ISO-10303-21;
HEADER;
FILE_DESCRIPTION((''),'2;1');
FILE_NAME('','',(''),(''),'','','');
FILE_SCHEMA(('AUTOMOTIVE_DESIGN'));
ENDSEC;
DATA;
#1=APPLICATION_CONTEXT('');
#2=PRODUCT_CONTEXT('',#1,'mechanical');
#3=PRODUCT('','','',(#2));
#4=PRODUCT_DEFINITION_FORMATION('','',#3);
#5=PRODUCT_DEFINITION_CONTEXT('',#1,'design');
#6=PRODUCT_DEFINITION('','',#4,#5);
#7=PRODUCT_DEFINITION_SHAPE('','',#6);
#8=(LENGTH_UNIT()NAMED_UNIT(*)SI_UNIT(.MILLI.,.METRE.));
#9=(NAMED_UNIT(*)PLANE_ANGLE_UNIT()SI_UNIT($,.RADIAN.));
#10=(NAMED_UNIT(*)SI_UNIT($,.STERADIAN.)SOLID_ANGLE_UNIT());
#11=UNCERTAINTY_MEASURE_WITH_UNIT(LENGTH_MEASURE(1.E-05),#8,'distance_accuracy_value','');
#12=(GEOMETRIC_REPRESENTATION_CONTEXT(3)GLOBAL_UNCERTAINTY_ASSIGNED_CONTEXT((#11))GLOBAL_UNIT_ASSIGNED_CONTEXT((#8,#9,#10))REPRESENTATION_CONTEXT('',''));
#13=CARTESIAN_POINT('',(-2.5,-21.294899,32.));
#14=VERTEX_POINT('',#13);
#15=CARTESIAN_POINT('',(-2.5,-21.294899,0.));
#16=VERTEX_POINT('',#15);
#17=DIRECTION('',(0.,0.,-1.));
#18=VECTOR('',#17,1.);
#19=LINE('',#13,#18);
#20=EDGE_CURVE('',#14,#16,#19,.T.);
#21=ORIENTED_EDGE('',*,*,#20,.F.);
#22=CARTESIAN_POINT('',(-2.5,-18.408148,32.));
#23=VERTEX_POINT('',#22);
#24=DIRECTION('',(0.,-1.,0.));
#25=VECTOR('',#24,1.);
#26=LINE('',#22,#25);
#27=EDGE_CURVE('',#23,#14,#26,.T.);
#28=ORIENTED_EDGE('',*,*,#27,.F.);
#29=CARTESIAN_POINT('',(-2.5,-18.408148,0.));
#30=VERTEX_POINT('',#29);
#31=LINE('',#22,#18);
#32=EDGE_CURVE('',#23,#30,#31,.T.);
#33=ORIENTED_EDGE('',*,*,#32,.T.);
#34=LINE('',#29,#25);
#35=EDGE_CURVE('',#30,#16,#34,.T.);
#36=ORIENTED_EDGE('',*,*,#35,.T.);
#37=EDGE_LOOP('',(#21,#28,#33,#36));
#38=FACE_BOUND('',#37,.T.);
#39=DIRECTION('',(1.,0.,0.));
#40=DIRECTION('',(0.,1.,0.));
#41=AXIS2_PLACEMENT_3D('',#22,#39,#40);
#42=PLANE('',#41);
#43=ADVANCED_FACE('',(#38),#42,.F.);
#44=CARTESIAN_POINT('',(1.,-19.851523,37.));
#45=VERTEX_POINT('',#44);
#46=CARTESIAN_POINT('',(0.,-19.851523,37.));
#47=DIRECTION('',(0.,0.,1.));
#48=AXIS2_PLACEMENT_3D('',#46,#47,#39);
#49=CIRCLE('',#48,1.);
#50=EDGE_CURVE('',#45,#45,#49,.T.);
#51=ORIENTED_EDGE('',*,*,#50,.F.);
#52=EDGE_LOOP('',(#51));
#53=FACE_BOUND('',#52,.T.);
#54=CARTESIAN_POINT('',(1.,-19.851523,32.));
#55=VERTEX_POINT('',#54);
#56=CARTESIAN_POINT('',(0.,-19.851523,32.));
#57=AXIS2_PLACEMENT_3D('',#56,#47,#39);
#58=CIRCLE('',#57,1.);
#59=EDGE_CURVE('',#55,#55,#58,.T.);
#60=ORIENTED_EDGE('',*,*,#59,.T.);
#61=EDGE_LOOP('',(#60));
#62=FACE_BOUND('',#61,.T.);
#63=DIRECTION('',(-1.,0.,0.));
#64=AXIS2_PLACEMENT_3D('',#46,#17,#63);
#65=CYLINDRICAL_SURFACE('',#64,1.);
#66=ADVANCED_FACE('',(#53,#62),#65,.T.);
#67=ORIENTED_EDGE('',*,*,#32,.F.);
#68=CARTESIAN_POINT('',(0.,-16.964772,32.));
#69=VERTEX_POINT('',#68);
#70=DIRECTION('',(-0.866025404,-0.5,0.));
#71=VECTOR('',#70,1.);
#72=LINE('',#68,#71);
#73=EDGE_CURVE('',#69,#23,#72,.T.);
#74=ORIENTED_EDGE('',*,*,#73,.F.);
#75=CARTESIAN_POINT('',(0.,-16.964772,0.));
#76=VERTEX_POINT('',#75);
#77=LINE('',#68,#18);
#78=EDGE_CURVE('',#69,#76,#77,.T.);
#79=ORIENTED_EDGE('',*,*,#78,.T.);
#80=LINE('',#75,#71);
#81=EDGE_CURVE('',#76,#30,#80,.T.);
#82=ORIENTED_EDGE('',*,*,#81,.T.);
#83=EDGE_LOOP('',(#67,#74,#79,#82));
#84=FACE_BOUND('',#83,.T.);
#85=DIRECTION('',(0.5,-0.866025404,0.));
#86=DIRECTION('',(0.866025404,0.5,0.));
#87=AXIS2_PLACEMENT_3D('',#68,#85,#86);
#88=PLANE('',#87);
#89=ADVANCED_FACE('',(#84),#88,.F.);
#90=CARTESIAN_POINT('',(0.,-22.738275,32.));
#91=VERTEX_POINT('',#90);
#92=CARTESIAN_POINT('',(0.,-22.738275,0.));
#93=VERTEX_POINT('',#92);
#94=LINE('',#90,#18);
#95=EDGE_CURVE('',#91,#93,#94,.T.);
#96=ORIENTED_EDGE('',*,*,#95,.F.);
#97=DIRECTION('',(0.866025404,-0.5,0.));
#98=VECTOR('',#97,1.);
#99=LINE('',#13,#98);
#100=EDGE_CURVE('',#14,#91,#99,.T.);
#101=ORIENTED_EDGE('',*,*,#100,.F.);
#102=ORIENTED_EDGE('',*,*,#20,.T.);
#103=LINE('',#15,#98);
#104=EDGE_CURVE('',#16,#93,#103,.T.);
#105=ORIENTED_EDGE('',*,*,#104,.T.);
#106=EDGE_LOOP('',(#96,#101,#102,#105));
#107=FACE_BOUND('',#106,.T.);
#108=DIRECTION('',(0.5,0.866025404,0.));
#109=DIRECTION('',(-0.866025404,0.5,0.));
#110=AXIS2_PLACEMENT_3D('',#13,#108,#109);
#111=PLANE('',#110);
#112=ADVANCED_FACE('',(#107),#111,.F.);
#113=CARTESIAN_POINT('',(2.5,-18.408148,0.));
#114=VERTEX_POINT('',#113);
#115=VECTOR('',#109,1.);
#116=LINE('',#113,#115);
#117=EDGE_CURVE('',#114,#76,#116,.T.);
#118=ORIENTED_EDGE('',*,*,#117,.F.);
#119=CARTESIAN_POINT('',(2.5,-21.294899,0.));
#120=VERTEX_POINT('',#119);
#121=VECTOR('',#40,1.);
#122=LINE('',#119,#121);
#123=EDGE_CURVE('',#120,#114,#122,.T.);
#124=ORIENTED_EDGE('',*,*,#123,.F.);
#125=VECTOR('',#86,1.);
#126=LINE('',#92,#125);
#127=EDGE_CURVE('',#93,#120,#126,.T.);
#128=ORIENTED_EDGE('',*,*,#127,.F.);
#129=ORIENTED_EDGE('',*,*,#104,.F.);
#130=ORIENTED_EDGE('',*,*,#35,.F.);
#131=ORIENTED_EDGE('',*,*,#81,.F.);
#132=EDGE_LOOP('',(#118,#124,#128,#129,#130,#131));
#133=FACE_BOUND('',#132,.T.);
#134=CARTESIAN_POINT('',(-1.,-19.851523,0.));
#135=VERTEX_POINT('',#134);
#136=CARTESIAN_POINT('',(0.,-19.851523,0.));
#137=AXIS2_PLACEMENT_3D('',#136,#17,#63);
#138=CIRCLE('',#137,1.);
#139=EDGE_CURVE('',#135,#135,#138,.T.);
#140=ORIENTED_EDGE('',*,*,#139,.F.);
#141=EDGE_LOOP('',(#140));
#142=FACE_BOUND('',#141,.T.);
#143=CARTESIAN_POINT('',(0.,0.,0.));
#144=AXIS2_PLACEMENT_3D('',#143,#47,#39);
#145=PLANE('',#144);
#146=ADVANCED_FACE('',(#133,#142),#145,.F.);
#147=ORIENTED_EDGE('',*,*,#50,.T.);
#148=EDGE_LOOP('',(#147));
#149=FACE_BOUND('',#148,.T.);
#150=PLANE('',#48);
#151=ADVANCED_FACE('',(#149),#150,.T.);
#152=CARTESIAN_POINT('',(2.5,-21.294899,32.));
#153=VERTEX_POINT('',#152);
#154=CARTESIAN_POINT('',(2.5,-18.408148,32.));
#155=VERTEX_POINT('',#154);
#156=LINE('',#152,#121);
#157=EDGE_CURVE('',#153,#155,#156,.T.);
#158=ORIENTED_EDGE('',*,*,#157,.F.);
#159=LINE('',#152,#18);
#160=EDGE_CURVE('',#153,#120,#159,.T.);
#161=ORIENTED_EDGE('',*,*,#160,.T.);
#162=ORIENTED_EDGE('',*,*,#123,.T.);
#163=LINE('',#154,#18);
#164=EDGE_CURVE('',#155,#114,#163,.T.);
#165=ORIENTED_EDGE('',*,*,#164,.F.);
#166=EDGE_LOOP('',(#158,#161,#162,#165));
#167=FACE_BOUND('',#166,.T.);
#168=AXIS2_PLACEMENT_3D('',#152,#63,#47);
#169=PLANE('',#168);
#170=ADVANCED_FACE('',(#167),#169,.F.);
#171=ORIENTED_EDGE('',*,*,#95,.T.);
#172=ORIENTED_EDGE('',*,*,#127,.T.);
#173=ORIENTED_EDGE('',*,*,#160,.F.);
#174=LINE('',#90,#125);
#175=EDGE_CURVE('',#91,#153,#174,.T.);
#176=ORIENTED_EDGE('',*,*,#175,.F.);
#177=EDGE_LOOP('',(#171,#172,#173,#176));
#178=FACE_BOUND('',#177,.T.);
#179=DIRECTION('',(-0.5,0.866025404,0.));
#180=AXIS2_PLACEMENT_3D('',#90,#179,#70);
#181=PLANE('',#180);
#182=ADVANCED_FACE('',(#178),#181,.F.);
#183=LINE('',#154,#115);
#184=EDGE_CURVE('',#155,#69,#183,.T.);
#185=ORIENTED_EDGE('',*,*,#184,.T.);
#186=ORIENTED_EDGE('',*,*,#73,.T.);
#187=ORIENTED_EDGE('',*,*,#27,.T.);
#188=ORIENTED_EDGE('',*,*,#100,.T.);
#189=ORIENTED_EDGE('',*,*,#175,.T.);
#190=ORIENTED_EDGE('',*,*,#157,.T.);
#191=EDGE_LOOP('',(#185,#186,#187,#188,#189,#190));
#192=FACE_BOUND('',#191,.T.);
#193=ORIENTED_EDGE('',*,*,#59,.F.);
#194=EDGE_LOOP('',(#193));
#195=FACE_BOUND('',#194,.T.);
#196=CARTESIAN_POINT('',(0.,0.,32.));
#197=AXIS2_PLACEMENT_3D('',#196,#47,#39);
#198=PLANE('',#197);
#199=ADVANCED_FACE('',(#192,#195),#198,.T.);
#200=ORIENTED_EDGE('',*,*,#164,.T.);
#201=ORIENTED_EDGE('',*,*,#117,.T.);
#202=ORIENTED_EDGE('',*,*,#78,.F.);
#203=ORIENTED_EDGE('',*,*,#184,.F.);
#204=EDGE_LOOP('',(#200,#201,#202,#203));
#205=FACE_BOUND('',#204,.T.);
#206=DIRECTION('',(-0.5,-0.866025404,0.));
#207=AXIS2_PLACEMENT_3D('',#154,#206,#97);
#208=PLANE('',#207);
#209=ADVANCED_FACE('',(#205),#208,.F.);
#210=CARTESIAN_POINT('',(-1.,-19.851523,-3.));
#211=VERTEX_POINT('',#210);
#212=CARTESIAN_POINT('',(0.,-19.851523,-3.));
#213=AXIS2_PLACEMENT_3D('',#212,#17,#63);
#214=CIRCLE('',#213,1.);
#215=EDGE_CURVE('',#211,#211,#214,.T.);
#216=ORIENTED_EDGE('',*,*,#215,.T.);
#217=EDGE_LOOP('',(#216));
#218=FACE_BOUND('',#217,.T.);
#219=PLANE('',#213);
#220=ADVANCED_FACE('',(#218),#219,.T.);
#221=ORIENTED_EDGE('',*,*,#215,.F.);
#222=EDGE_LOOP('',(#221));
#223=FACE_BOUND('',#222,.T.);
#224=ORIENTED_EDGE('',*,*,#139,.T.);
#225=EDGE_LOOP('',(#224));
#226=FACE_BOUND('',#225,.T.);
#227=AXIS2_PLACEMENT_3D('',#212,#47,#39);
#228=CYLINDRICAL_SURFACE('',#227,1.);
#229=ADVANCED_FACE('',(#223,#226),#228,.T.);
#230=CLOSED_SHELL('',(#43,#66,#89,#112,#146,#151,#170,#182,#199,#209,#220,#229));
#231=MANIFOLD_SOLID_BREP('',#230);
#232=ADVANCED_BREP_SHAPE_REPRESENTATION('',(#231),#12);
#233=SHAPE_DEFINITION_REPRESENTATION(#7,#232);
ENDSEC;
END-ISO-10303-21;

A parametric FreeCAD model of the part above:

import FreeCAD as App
import Part
import Sketcher
from FreeCAD import Vector
Q = App.Units.Quantity

doc = App.newDocument("Part")
body = doc.addObject("PartDesign::Body", "Body")

sketch1 = doc.addObject("Sketcher::SketchObject", "Sketch")
body.addObject(sketch1)
sketch1.AttachmentSupport = (doc.XY_Plane, [""])
sketch1.MapMode = "FlatFace"
sketch1.addGeometry(Part.LineSegment(Vector(0, -17, 0), Vector(-2.5, -18.4, 0)), False)
sketch1.addGeometry(Part.LineSegment(Vector(-2.5, -18.4, 0), Vector(-2.5, -21.3, 0)), False)
sketch1.addGeometry(Part.LineSegment(Vector(-2.5, -21.3, 0), Vector(0, -22.7, 0)), False)
sketch1.addGeometry(Part.LineSegment(Vector(0, -22.7, 0), Vector(2.5, -21.3, 0)), False)
sketch1.addGeometry(Part.LineSegment(Vector(2.5, -21.3, 0), Vector(2.5, -18.4, 0)), False)
sketch1.addGeometry(Part.LineSegment(Vector(2.5, -18.4, 0), Vector(0, -17, 0)), False)
sketch1.addConstraint(Sketcher.Constraint("Coincident", 0, 2, 1, 1))
sketch1.addConstraint(Sketcher.Constraint("Coincident", 1, 2, 2, 1))
sketch1.addConstraint(Sketcher.Constraint("Coincident", 2, 2, 3, 1))
sketch1.addConstraint(Sketcher.Constraint("Coincident", 3, 2, 4, 1))
sketch1.addConstraint(Sketcher.Constraint("Coincident", 4, 2, 5, 1))
sketch1.addConstraint(Sketcher.Constraint("Coincident", 5, 2, 0, 1))
sketch1.addConstraint(Sketcher.Constraint("Vertical", 1))
sketch1.addConstraint(Sketcher.Constraint("Vertical", 4))
sketch1.addConstraint(Sketcher.Constraint("Symmetric", 1, 2, 3, 2, -2))
sketch1.addConstraint(Sketcher.Constraint("PointOnObject", 2, 2, -2))
sketch1.addConstraint(Sketcher.Constraint("PointOnObject", 5, 2, -2))
sketch1.addConstraint(Sketcher.Constraint("Parallel", 0, 3))
sketch1.addConstraint(Sketcher.Constraint("Parallel", 2, 5))
sketch1.addConstraint(Sketcher.Constraint("Angle", 0, Q("-150 deg")))
sketch1.addConstraint(Sketcher.Constraint("DistanceX", 1, 2, 3, 2, Q("5 mm")))
sketch1.addConstraint(Sketcher.Constraint("DistanceY", 1, 2, 1, 1, Q("2.886751 mm")))
sketch1.addConstraint(Sketcher.Constraint("DistanceY", 1, 2, -1, 1, Q("21.294899 mm")))
pad1 = doc.addObject("PartDesign::Pad", "Pad")
body.addObject(pad1)
pad1.Profile = sketch1
pad1.Length = 32

sketch2 = doc.addObject("Sketcher::SketchObject", "Sketch001")
body.addObject(sketch2)
sketch2.AttachmentSupport = (doc.XY_Plane, [""])
sketch2.MapMode = "FlatFace"
sketch2.AttachmentOffset = App.Placement(Vector(0, 0, 32), App.Rotation())
sketch2.addGeometry(Part.Circle(Vector(0, -19.9, 0), Vector(0, 0, 1), 1), False)
sketch2.addConstraint(Sketcher.Constraint("PointOnObject", 0, 3, -2))
sketch2.addConstraint(Sketcher.Constraint("Diameter", 0, Q("2 mm")))
sketch2.addConstraint(Sketcher.Constraint("DistanceY", 0, 3, -1, 1, Q("19.851523 mm")))
pad2 = doc.addObject("PartDesign::Pad", "Pad001")
body.addObject(pad2)
pad2.Profile = sketch2
pad2.Length = 5

sketch3 = doc.addObject("Sketcher::SketchObject", "Sketch002")
body.addObject(sketch3)
sketch3.AttachmentSupport = (doc.XY_Plane, [""])
sketch3.MapMode = "FlatFace"
sketch3.AttachmentOffset = App.Placement(Vector(0, 0, -3), App.Rotation())
sketch3.addGeometry(Part.Circle(Vector(0, -19.9, 0), Vector(0, 0, 1), 1), False)
sketch3.addConstraint(Sketcher.Constraint("PointOnObject", 0, 3, -2))
sketch3.addConstraint(Sketcher.Constraint("Diameter", 0, Q("2 mm")))
sketch3.addConstraint(Sketcher.Constraint("DistanceY", 0, 3, -1, 1, Q("19.851523 mm")))
pad3 = doc.addObject("PartDesign::Pad", "Pad002")
body.addObject(pad3)
pad3.Profile = sketch3
pad3.Length = 3

doc.recompute()
